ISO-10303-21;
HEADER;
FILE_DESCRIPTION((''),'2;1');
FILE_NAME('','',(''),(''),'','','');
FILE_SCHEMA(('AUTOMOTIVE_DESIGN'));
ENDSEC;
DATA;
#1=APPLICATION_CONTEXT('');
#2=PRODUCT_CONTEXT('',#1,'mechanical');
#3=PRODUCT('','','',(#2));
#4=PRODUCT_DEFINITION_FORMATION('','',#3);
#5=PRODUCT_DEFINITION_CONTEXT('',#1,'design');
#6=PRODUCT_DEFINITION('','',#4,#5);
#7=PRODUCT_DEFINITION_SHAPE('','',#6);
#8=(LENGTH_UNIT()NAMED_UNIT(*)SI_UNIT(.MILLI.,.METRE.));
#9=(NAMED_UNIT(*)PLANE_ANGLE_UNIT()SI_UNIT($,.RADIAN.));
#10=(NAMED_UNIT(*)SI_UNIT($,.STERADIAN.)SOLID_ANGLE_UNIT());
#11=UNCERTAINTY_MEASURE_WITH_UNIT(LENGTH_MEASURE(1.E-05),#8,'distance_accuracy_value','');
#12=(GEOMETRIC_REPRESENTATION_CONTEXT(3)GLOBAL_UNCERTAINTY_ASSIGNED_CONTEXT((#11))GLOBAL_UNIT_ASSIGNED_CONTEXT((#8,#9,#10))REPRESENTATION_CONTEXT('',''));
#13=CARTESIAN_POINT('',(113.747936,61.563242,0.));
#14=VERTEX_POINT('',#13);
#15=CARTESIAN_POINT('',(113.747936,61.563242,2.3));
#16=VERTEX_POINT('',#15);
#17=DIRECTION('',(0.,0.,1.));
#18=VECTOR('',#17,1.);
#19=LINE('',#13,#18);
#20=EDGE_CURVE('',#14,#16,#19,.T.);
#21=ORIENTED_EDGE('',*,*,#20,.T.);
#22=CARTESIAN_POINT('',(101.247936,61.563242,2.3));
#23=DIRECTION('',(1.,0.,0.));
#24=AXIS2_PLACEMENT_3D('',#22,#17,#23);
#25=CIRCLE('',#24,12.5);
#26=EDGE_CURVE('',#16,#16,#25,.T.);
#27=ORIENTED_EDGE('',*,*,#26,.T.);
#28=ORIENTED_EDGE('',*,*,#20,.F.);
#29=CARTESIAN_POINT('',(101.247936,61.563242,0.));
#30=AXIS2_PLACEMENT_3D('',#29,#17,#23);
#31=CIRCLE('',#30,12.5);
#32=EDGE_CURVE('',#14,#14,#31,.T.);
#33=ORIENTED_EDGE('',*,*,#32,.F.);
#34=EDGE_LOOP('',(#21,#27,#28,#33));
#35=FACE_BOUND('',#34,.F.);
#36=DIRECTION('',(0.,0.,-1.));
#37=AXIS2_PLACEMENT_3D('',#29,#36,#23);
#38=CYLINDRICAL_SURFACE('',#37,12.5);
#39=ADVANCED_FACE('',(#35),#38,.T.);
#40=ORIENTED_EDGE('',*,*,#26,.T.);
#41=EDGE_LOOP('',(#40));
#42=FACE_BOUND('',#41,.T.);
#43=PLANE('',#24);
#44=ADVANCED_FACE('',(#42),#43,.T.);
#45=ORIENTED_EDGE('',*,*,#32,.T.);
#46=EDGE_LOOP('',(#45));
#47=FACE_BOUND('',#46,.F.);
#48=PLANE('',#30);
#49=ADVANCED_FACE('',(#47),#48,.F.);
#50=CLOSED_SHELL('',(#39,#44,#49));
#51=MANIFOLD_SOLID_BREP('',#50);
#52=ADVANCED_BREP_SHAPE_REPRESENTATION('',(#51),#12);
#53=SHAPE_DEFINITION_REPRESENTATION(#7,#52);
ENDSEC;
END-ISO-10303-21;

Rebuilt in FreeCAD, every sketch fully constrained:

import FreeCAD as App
import Part
import Sketcher

doc = App.newDocument("Part")
params = doc.addObject("Spreadsheet::Sheet", "Params")
for row, (alias, value) in enumerate([
    ("sketch1_diameter", "25 mm"),
    ("pad1_length", "2.3 mm"),
], start=1):
    params.set(f"A{row}", alias)
    params.set(f"B{row}", "=" + value)
    params.setAlias(f"B{row}", alias)

body = doc.addObject("PartDesign::Body", "Body")

sketch1 = body.newObject("Sketcher::SketchObject", "Sketch")
sketch1.AttachmentSupport = (doc.getObject("XY_Plane"), [""])
sketch1.MapMode = "FlatFace"
sketch1.addGeometry(Part.Circle(App.Vector(101, 62, 0), App.Vector(0, 0, 1), 12), False)
sketch1.addConstraint(Sketcher.Constraint("Diameter", 0, 25.0))
sketch1.addConstraint(Sketcher.Constraint("DistanceY", -1, 1, 0, 3, 61.563242))
sketch1.addConstraint(Sketcher.Constraint("DistanceX", -1, 1, 0, 3, 101.247936))
sketch1.setExpression("Constraints[0]", "Params.sketch1_diameter")
pad1 = body.newObject("PartDesign::Pad", "Pad")
pad1.Profile = sketch1
pad1.setExpression("Length", "Params.pad1_length")

doc.recompute()
